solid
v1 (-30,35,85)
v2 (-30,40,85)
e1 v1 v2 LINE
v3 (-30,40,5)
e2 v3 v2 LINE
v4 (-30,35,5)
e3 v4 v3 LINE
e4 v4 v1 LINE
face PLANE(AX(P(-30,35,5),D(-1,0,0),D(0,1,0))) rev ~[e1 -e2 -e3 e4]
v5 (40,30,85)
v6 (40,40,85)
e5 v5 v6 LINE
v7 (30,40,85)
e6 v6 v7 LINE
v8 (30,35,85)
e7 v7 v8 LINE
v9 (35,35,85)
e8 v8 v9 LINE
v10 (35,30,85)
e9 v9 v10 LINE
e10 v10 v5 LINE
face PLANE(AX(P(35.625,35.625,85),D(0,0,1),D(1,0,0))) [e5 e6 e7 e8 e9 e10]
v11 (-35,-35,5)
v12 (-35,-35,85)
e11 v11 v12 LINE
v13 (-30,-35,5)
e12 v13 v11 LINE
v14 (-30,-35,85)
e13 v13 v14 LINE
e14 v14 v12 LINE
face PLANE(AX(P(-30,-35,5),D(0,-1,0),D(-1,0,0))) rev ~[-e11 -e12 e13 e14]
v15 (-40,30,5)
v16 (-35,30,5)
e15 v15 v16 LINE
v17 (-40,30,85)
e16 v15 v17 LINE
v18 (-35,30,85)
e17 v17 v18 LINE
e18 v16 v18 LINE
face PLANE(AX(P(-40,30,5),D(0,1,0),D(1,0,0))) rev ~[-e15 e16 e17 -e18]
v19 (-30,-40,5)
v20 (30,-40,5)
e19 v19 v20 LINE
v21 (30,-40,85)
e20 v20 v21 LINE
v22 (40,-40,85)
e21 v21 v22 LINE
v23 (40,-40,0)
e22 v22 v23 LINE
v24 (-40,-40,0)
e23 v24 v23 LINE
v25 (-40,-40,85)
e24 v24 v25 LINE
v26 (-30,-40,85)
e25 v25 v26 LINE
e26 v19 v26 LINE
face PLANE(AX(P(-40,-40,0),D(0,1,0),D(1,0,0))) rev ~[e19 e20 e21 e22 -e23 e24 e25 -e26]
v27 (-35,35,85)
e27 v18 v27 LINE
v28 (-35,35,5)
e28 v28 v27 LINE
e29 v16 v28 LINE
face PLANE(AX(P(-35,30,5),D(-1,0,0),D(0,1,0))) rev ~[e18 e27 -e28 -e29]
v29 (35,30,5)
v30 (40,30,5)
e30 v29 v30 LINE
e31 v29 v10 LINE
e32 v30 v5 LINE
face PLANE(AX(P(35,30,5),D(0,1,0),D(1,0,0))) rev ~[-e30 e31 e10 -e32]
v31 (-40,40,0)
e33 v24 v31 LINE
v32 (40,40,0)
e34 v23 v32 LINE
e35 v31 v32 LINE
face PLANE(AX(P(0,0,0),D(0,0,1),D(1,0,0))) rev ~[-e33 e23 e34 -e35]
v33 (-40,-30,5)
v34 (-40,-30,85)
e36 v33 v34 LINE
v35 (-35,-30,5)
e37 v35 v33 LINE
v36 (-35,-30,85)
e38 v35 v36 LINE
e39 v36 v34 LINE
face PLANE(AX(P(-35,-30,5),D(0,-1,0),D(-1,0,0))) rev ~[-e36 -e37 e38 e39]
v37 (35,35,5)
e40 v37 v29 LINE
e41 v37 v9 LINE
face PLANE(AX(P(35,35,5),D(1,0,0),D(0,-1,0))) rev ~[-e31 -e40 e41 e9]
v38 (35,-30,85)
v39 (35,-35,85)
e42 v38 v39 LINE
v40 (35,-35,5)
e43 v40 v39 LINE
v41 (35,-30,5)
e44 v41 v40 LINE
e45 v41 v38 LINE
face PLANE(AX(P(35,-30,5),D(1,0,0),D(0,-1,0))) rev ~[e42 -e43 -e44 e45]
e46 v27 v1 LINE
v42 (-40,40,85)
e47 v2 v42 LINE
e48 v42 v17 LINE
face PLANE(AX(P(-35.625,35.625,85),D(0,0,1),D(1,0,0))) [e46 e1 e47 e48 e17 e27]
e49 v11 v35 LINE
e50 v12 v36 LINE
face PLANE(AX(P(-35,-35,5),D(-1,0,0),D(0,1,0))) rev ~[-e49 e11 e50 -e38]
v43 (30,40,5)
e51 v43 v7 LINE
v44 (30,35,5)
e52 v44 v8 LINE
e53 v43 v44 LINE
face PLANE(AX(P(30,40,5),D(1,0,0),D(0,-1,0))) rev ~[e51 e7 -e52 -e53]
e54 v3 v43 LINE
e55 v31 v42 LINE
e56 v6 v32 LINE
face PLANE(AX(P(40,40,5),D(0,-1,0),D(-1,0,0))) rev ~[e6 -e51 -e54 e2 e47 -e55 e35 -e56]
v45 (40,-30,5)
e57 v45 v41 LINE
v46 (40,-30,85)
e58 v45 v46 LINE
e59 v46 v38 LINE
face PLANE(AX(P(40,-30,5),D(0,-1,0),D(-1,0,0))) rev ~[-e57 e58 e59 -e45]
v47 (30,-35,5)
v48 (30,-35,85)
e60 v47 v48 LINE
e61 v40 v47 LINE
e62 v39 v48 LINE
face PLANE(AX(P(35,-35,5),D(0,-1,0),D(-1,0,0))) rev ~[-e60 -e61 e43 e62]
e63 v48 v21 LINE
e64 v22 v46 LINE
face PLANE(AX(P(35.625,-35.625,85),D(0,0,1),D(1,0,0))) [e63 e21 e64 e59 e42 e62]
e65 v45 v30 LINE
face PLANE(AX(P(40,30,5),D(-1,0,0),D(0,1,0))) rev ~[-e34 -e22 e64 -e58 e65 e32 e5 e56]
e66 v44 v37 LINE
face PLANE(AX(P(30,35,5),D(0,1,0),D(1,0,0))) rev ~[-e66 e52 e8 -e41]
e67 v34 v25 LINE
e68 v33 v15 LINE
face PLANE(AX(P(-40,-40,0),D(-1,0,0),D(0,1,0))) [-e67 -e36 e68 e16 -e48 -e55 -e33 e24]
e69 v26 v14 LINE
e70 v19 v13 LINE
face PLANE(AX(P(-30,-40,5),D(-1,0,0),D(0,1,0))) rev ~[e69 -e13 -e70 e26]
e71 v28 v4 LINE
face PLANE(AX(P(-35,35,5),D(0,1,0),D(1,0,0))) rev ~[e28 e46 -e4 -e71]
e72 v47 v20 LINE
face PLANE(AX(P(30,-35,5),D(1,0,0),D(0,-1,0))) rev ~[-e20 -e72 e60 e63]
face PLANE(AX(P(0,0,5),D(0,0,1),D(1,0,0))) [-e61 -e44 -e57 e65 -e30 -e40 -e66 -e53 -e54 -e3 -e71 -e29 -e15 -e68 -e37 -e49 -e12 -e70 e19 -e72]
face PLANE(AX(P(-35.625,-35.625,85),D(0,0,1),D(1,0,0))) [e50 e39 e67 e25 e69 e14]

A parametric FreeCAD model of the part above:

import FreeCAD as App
import Part
import Sketcher


def add_polygon(sketch, points):
    """Adds a closed chain of lines whose ends are joined by coincident constraints."""
    first, n = sketch.GeometryCount, len(points)
    for a, b in zip(points, points[1:] + points[:1]):
        sketch.addGeometry(Part.LineSegment(App.Vector(*a, 0), App.Vector(*b, 0)), False)
    for i in range(n):
        sketch.addConstraint(Sketcher.Constraint("Coincident", first + i, 2, first + (i + 1) % n, 1))

doc = App.newDocument("Part")
body = doc.addObject("PartDesign::Body", "Body")

# Sketch on XY plane
sketch1 = body.newObject("Sketcher::SketchObject", "Sketch")
sketch1.AttachmentSupport = (doc.getObject("XY_Plane"), [""])
sketch1.MapMode = "FlatFace"
add_polygon(sketch1, [(-40, 40), (-40, -40), (40, -40), (40, 40)])  # lines 0-3
sketch1.addConstraint(Sketcher.Constraint("Vertical", 0))
sketch1.addConstraint(Sketcher.Constraint("Horizontal", 1))
sketch1.addConstraint(Sketcher.Constraint("Vertical", 2))
sketch1.addConstraint(Sketcher.Constraint("Horizontal", 3))
sketch1.addConstraint(Sketcher.Constraint("Symmetric", 0, 2, 2, 2, -1, 1))
sketch1.addConstraint(Sketcher.Constraint("Equal", 3, 0))
sketch1.addConstraint(Sketcher.Constraint("DistanceX", 1, 1, 1, 2, 80.0))
pad1 = body.newObject("PartDesign::Pad", "Pad")
pad1.Profile = sketch1
pad1.Length = 5

# Sketch on XY plane
sketch2 = body.newObject("Sketcher::SketchObject", "Sketch001")
sketch2.AttachmentSupport = (doc.getObject("XY_Plane"), [""])
sketch2.MapMode = "FlatFace"
sketch2.AttachmentOffset = App.Placement(App.Vector(0, 0, 5), App.Rotation())
add_polygon(sketch2, [(40, 40), (30, 40), (30, 35), (35, 35), (35, 30), (40, 30)])  # lines 0-5
add_polygon(sketch2, [(40, -30), (35, -30), (35, -35), (30, -35), (30, -40), (40, -40)])  # lines 6-11
add_polygon(sketch2, [(-30, -40), (-30, -35), (-35, -35), (-35, -30), (-40, -30), (-40, -40)])  # lines 12-17
add_polygon(sketch2, [(-40, 30), (-35, 30), (-35, 35), (-30, 35), (-30, 40), (-40, 40)])  # lines 18-23
sketch2.addConstraint(Sketcher.Constraint("Horizontal", 0))
sketch2.addConstraint(Sketcher.Constraint("Vertical", 1))
sketch2.addConstraint(Sketcher.Constraint("Horizontal", 2))
sketch2.addConstraint(Sketcher.Constraint("Vertical", 3))
sketch2.addConstraint(Sketcher.Constraint("Horizontal", 4))
sketch2.addConstraint(Sketcher.Constraint("Vertical", 5))
sketch2.addConstraint(Sketcher.Constraint("Horizontal", 6))
sketch2.addConstraint(Sketcher.Constraint("Vertical", 7))
sketch2.addConstraint(Sketcher.Constraint("Horizontal", 8))
sketch2.addConstraint(Sketcher.Constraint("Vertical", 9))
sketch2.addConstraint(Sketcher.Constraint("Horizontal", 10))
sketch2.addConstraint(Sketcher.Constraint("Vertical", 11))
sketch2.addConstraint(Sketcher.Constraint("Vertical", 12))
sketch2.addConstraint(Sketcher.Constraint("Horizontal", 13))
sketch2.addConstraint(Sketcher.Constraint("Vertical", 14))
sketch2.addConstraint(Sketcher.Constraint("Horizontal", 15))
sketch2.addConstraint(Sketcher.Constraint("Vertical", 16))
sketch2.addConstraint(Sketcher.Constraint("Horizontal", 17))
sketch2.addConstraint(Sketcher.Constraint("Horizontal", 18))
sketch2.addConstraint(Sketcher.Constraint("Vertical", 19))
sketch2.addConstraint(Sketcher.Constraint("Horizontal", 20))
sketch2.addConstraint(Sketcher.Constraint("Vertical", 21))
sketch2.addConstraint(Sketcher.Constraint("Horizontal", 22))
sketch2.addConstraint(Sketcher.Constraint("Vertical", 23))
sketch2.addConstraint(Sketcher.Constraint("Symmetric", 1, 2, 12, 2, -1, 1))
sketch2.addConstraint(Sketcher.Constraint("Symmetric", 3, 2, 14, 2, -1, 1))
sketch2.addConstraint(Sketcher.Constraint("Symmetric", 5, 2, 16, 2, -1, 1))
sketch2.addConstraint(Sketcher.Constraint("Symmetric", 6, 2, 18, 2, -1, 1))
sketch2.addConstraint(Sketcher.Constraint("Symmetric", 8, 2, 20, 2, -1, 1))
sketch2.addConstraint(Sketcher.Constraint("Symmetric", 10, 2, 22, 2, -1, 1))
sketch2.addConstraint(Sketcher.Constraint("Symmetric", 8, 2, 12, 2, -2))
sketch2.addConstraint(Sketcher.Constraint("Symmetric", 6, 2, 14, 2, -2))
sketch2.addConstraint(Sketcher.Constraint("Symmetric", 10, 2, 16, 2, -2))
sketch2.addConstraint(Sketcher.Constraint("Equal", 2, 4))
sketch2.addConstraint(Sketcher.Constraint("Equal", 20, 1))
sketch2.addConstraint(Sketcher.Constraint("Equal", 1, 3))
sketch2.addConstraint(Sketcher.Constraint("DistanceX", 0, 2, 0, 1, 10.0))
sketch2.addConstraint(Sketcher.Constraint("DistanceX", -1, 1, 0, 2, 30.0))
sketch2.addConstraint(Sketcher.Constraint("DistanceY", -1, 1, 0, 2, 40.0))
pad2 = body.newObject("PartDesign::Pad", "Pad001")
pad2.Profile = sketch2
pad2.Length = 80

doc.recompute()
